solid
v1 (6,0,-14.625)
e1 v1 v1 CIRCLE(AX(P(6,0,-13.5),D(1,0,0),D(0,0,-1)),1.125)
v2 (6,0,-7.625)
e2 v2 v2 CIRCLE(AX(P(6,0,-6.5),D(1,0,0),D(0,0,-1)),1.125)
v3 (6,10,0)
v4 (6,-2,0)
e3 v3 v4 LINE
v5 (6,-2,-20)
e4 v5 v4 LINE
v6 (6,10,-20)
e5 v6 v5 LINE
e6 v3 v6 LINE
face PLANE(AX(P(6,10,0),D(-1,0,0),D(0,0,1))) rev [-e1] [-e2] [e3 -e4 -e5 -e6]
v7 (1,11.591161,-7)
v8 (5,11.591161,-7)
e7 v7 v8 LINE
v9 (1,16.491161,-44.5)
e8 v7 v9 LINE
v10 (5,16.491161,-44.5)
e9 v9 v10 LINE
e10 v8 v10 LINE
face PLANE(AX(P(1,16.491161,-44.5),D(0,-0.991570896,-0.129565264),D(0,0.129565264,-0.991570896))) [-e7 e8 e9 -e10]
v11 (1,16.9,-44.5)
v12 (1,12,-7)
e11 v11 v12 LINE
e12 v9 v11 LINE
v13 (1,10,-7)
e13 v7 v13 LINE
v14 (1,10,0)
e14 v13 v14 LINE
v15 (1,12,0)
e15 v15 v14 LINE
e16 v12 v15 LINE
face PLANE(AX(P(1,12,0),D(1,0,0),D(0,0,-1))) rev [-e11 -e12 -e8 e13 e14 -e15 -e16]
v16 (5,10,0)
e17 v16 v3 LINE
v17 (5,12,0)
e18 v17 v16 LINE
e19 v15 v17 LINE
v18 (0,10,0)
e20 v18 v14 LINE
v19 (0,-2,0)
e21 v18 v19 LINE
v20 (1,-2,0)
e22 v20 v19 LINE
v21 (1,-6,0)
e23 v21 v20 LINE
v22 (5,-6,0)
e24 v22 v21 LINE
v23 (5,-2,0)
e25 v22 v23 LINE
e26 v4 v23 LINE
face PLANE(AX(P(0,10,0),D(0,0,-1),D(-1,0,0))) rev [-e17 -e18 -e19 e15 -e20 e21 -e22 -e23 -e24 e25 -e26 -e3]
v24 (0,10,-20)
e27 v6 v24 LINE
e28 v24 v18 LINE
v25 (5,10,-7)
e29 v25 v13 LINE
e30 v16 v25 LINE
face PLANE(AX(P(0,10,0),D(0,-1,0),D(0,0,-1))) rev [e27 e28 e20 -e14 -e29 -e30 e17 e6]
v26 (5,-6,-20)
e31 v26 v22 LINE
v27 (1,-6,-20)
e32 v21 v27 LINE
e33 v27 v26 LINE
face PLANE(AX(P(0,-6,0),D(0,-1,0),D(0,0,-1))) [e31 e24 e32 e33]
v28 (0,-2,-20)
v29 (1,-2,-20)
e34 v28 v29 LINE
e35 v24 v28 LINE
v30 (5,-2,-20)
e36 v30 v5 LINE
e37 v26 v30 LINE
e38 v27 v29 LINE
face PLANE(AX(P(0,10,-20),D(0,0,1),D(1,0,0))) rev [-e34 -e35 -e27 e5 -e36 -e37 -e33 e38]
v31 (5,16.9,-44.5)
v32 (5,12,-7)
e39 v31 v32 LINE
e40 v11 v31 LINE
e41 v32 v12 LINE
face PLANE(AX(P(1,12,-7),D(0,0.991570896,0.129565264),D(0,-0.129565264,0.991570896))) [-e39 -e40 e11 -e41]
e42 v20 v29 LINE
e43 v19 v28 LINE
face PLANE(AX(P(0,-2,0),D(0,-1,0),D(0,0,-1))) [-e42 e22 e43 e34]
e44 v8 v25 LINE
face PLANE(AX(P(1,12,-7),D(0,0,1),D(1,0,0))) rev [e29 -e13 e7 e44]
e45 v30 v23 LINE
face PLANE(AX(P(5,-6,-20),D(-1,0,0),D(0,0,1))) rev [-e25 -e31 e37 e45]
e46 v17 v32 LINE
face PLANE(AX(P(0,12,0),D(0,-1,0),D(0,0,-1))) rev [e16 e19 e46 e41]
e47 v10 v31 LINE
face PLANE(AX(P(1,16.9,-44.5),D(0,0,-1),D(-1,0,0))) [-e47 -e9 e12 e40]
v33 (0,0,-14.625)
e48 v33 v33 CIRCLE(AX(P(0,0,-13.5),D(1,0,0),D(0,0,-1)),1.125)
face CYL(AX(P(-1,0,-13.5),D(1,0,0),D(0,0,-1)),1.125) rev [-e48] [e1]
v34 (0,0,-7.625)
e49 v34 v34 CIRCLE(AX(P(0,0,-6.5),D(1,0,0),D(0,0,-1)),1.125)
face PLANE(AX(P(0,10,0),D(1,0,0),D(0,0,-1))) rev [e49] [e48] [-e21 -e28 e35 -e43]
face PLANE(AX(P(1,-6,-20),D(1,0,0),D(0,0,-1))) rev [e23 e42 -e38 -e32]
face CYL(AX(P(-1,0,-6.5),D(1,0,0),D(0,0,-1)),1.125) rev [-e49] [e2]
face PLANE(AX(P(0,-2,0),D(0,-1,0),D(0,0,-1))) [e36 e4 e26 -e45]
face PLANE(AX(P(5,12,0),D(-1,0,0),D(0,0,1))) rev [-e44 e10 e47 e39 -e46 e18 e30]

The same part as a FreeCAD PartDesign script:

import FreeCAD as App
import Part
import Sketcher
from FreeCAD import Vector


def add_polygon(sketch, points):
    """Adds a closed chain of lines whose ends are joined by coincident constraints."""
    first, n = sketch.GeometryCount, len(points)
    for a, b in zip(points, points[1:] + points[:1]):
        sketch.addGeometry(Part.LineSegment(App.Vector(*a, 0), App.Vector(*b, 0)), False)
    for i in range(n):
        sketch.addConstraint(Sketcher.Constraint("Coincident", first + i, 2, first + (i + 1) % n, 1))

doc = App.newDocument("Part")
body = doc.addObject("PartDesign::Body", "Body")

# Sketch on XZ plane
sketch1 = doc.addObject("Sketcher::SketchObject", "Sketch")
body.addObject(sketch1)
sketch1.AttachmentSupport = (doc.XZ_Plane, [""])
sketch1.MapMode = "FlatFace"
add_polygon(sketch1, [(0, -20), (0, 0), (6, 0), (6, -20)])  # lines 0-3
sketch1.addConstraint([
    Sketcher.Constraint("Vertical", 0),
    Sketcher.Constraint("Horizontal", 1),
    Sketcher.Constraint("Vertical", 2),
    Sketcher.Constraint("Horizontal", 3),
    Sketcher.Constraint("Coincident", 0, 2, -1, 1),
    Sketcher.Constraint("DistanceX", 1, 1, 1, 2, 6.0),
    Sketcher.Constraint("DistanceY", 0, 1, 0, 2, 20.0),
])
pad1 = doc.addObject("PartDesign::Pad", "Pad")
body.addObject(pad1)
pad1.Profile = sketch1
pad1.Length = 10
pad1.Reversed = True

# Sketch on XZ plane
sketch2 = doc.addObject("Sketcher::SketchObject", "Sketch001")
body.addObject(sketch2)
sketch2.AttachmentSupport = (doc.XZ_Plane, [""])
sketch2.MapMode = "FlatFace"
add_polygon(sketch2, [(6, -20), (6, 0), (0, 0), (0, -20)])  # lines 0-3
sketch2.addConstraint([
    Sketcher.Constraint("Vertical", 0),
    Sketcher.Constraint("Horizontal", 1),
    Sketcher.Constraint("Vertical", 2),
    Sketcher.Constraint("Horizontal", 3),
    Sketcher.Constraint("Coincident", 1, 2, -1, 1),
    Sketcher.Constraint("DistanceX", 1, 2, 1, 1, 6.0),
    Sketcher.Constraint("DistanceY", 0, 1, 0, 2, 20.0),
])
pad2 = doc.addObject("PartDesign::Pad", "Pad001")
body.addObject(pad2)
pad2.Profile = sketch2
pad2.Length = 2

# Sketch on YZ plane
sketch3 = doc.addObject("Sketcher::SketchObject", "Sketch002")
body.addObject(sketch3)
sketch3.AttachmentSupport = (doc.YZ_Plane, [""])
sketch3.MapMode = "FlatFace"
sketch3.AttachmentOffset = App.Placement(Vector(0, 0, 6), App.Rotation())
sketch3.addGeometry([
    Part.Circle(Vector(0, -6.5, 0), Vector(0, 0, 1), 1.1),
    Part.Circle(Vector(0, -13.5, 0), Vector(0, 0, 1), 1.1),
], False)
sketch3.addConstraint([
    Sketcher.Constraint("Equal", 0, 1),
    Sketcher.Constraint("PointOnObject", 0, 3, -2),
    Sketcher.Constraint("PointOnObject", 1, 3, -2),
    Sketcher.Constraint("Diameter", 0, 2.25),
    Sketcher.Constraint("DistanceY", 1, 3, 0, 3, 7.0),
    Sketcher.Constraint("DistanceY", 0, 3, -1, 1, 6.5),
])
pocket1 = doc.addObject("PartDesign::Pocket", "Pocket")
body.addObject(pocket1)
pocket1.Profile = sketch3
pocket1.Length = 7

# Sketch on XZ plane
sketch4 = doc.addObject("Sketcher::SketchObject", "Sketch003")
body.addObject(sketch4)
sketch4.AttachmentSupport = (doc.XZ_Plane, [""])
sketch4.MapMode = "FlatFace"
sketch4.AttachmentOffset = App.Placement(Vector(0, 0, 2), App.Rotation())
add_polygon(sketch4, [(5, -20), (5, 0), (1, 0), (1, -20)])  # lines 0-3
sketch4.addConstraint([
    Sketcher.Constraint("Vertical", 0),
    Sketcher.Constraint("Horizontal", 1),
    Sketcher.Constraint("Vertical", 2),
    Sketcher.Constraint("Horizontal", 3),
    Sketcher.Constraint("PointOnObject", 0, 2, -1),
    Sketcher.Constraint("DistanceX", 1, 2, 1, 1, 4.0),
    Sketcher.Constraint("DistanceY", 0, 1, 0, 2, 20.0),
    Sketcher.Constraint("DistanceX", -1, 1, 0, 2, 5.0),
])
pad3 = doc.addObject("PartDesign::Pad", "Pad002")
body.addObject(pad3)
pad3.Profile = sketch4
pad3.Length = 4

# Sketch on XZ plane
sketch5 = doc.addObject("Sketcher::SketchObject", "Sketch004")
body.addObject(sketch5)
sketch5.AttachmentSupport = (doc.XZ_Plane, [""])
sketch5.MapMode = "FlatFace"
sketch5.AttachmentOffset = App.Placement(Vector(0, 0, -10), App.Rotation())
add_polygon(sketch5, [(1, -7), (1, 0), (5, 0), (5, -7)])  # lines 0-3
sketch5.addConstraint([
    Sketcher.Constraint("Vertical", 0),
    Sketcher.Constraint("Horizontal", 1),
    Sketcher.Constraint("Vertical", 2),
    Sketcher.Constraint("Horizontal", 3),
    Sketcher.Constraint("PointOnObject", 0, 2, -1),
    Sketcher.Constraint("DistanceX", 1, 1, 1, 2, 4.0),
    Sketcher.Constraint("DistanceY", 0, 1, 0, 2, 7.0),
    Sketcher.Constraint("DistanceX", -1, 1, 0, 2, 1.0),
])
pad4 = doc.addObject("PartDesign::Pad", "Pad003")
body.addObject(pad4)
pad4.Profile = sketch5
pad4.Length = 2
pad4.Reversed = True

# Sketch on YZ plane
sketch6 = doc.addObject("Sketcher::SketchObject", "Sketch005")
body.addObject(sketch6)
sketch6.AttachmentSupport = (doc.YZ_Plane, [""])
sketch6.MapMode = "FlatFace"
sketch6.AttachmentOffset = App.Placement(Vector(0, 0, 5), App.Rotation())
add_polygon(sketch6, [(16.9, -44.5), (12, -7), (12, 0), (10, 0), (10, -7), (11.59, -7), (16.49, -44.5)])  # lines 0-6
sketch6.addConstraint([
    Sketcher.Constraint("Vertical", 1),
    Sketcher.Constraint("Horizontal", 2),
    Sketcher.Constraint("Vertical", 3),
    Sketcher.Constraint("Horizontal", 4),
    Sketcher.Constraint("Horizontal", 6),
    Sketcher.Constraint("PointOnObject", 1, 2, -1),
    Sketcher.Constraint("Parallel", 0, 5),
    Sketcher.Constraint("Horizontal", 0, 2, 3, 2),
    Sketcher.Constraint("DistanceX", 2, 2, 2, 1, 2.0),
    Sketcher.Constraint("DistanceY", 1, 1, 1, 2, 7.0),
    Sketcher.Constraint("DistanceX", -1, 1, 0, 2, 12.0),
    Sketcher.Constraint("DistanceY", 5, 2, -1, 1, 44.5),
    Sketcher.Constraint("DistanceX", -1, 1, 6, 2, 16.9),
    Sketcher.Constraint("DistanceX", 4, 1, 4, 2, 1.591161),
])
pad5 = doc.addObject("PartDesign::Pad", "Pad004")
body.addObject(pad5)
pad5.Profile = sketch6
pad5.Length = 4
pad5.Reversed = True

doc.recompute()
